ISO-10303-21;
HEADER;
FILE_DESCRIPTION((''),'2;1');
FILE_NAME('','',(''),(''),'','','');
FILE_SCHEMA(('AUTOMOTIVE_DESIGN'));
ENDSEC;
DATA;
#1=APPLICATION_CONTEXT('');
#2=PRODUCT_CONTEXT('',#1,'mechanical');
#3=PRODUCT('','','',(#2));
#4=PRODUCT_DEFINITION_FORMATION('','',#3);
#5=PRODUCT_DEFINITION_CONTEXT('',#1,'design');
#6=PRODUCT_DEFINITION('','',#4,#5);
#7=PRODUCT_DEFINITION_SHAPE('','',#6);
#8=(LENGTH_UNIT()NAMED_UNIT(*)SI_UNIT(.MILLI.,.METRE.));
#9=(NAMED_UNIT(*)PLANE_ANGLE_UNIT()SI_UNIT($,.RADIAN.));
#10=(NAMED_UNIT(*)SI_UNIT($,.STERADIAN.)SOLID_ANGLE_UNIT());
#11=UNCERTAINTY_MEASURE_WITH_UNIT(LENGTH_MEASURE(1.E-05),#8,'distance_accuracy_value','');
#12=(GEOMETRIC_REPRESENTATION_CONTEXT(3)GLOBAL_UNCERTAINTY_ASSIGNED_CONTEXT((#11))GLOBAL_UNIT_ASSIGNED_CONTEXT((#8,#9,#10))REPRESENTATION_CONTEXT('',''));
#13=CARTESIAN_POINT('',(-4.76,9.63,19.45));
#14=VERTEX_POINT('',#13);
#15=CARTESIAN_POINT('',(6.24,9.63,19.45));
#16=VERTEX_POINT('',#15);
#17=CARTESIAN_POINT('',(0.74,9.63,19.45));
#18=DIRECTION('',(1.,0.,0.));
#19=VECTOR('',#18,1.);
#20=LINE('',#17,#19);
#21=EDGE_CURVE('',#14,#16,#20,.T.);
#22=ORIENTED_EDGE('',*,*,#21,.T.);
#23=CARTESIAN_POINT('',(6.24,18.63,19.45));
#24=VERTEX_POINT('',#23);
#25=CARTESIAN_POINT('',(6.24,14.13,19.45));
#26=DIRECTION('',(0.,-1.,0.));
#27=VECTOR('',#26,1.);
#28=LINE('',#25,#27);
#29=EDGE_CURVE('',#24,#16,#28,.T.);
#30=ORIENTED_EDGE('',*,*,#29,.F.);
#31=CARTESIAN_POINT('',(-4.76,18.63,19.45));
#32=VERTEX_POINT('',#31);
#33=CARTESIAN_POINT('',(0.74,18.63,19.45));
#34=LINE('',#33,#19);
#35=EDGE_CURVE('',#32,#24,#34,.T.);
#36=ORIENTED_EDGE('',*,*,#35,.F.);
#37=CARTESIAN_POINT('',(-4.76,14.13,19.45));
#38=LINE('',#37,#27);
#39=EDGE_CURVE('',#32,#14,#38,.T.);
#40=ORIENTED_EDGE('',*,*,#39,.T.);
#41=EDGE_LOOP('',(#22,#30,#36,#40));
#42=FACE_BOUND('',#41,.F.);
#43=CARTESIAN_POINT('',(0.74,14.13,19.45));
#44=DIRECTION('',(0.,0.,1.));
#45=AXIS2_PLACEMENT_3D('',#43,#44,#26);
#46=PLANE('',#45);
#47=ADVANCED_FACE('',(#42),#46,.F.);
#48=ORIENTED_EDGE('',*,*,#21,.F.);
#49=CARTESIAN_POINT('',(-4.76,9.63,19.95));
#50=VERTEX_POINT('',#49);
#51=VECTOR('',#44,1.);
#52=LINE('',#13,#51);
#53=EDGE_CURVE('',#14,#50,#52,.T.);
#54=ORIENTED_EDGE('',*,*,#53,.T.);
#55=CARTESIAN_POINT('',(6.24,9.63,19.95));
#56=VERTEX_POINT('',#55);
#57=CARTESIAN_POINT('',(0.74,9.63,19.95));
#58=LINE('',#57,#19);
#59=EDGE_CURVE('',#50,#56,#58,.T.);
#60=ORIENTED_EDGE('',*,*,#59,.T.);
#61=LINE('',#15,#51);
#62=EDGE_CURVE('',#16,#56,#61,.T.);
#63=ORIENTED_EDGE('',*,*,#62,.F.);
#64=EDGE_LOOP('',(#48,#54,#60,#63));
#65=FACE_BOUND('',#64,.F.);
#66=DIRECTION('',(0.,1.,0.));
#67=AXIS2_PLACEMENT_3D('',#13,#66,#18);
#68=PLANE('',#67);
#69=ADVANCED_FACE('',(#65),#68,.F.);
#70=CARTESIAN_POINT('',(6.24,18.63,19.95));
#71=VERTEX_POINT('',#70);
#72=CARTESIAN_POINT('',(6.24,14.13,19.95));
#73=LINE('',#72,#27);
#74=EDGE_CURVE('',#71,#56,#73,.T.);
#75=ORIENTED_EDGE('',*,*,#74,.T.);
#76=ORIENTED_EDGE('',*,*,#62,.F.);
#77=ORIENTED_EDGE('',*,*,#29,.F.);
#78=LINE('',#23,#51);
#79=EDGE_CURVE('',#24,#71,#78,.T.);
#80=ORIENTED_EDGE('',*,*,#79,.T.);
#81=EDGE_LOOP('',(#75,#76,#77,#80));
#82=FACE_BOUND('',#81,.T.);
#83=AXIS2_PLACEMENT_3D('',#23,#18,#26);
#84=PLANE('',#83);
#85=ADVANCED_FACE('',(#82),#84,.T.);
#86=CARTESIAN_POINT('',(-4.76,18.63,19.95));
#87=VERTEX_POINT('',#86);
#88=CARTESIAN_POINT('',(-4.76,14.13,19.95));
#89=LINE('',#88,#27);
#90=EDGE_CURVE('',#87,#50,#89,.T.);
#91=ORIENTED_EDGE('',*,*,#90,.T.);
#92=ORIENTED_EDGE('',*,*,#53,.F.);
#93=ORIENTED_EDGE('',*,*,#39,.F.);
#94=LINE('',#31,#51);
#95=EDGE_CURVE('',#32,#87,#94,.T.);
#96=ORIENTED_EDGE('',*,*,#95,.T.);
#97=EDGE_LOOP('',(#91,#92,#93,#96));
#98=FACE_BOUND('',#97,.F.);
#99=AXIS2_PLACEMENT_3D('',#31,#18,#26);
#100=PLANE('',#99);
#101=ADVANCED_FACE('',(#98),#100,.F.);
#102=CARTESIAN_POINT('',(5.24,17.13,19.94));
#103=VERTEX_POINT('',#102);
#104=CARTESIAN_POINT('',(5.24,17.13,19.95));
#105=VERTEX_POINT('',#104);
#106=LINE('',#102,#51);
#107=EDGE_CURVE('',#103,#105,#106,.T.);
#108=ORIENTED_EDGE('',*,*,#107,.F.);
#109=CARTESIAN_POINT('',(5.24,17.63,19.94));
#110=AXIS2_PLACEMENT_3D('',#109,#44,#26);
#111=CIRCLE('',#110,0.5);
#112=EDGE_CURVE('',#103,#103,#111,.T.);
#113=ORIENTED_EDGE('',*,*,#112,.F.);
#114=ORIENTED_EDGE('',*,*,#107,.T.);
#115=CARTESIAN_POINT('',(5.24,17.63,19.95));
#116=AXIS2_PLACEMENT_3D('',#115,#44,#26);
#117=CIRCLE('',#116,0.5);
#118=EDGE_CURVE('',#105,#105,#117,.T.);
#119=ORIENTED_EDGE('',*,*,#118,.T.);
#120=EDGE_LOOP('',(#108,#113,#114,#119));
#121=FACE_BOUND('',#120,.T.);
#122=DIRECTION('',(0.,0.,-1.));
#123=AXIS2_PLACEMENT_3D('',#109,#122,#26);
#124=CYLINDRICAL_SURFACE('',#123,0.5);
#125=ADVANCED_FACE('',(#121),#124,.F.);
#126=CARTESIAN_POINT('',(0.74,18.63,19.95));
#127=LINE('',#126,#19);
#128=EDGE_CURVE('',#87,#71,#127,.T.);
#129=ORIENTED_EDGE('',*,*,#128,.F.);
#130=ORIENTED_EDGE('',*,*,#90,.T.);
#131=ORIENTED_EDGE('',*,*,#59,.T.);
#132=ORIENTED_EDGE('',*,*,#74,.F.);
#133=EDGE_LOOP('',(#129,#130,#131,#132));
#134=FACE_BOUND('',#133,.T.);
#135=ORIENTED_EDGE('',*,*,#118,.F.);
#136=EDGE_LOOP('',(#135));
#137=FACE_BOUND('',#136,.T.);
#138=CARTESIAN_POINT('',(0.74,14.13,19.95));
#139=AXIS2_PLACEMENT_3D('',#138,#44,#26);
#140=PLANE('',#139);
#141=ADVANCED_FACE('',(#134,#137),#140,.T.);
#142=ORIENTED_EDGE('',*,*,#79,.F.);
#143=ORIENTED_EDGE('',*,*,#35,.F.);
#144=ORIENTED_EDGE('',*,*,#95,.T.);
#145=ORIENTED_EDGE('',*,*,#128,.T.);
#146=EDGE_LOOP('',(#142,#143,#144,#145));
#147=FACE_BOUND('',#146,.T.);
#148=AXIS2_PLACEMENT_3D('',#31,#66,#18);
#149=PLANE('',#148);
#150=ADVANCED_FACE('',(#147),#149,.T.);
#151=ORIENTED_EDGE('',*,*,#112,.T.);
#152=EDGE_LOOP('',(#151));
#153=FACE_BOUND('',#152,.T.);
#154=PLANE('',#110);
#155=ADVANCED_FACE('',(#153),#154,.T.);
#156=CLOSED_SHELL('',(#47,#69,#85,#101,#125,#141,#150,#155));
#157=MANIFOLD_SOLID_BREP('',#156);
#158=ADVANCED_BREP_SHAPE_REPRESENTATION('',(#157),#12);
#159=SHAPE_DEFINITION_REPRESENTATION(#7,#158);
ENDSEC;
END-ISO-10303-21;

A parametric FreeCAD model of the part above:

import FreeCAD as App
import Part
import Sketcher

V = App.Vector
Q = App.Units.Quantity


def add_polygon(sketch, points):
    """Adds a closed chain of lines whose ends are joined by coincident constraints."""
    first, n = sketch.GeometryCount, len(points)
    for a, b in zip(points, points[1:] + points[:1]):
        sketch.addGeometry(Part.LineSegment(App.Vector(*a, 0), App.Vector(*b, 0)), False)
    for i in range(n):
        sketch.addConstraint(Sketcher.Constraint("Coincident", first + i, 2, first + (i + 1) % n, 1))

doc = App.newDocument("Part")
body = doc.addObject("PartDesign::Body", "Body")

# Sketch on XY plane
sketch1 = doc.addObject("Sketcher::SketchObject", "Sketch")
body.addObject(sketch1)
sketch1.AttachmentSupport = (doc.XY_Plane, [""])
sketch1.MapMode = "FlatFace"
sketch1.AttachmentOffset = App.Placement(V(0, 0, 0.49), App.Rotation())
sketch1.addGeometry(Part.Circle(V(1, 10, 0), V(0, 0, 1), 0.5), False)
sketch1.addConstraint([
    Sketcher.Constraint("Diameter", 0, Q("1 mm")),
    Sketcher.Constraint("DistanceX", -1, 1, 0, 3, Q("1 mm")),
    Sketcher.Constraint("DistanceY", -1, 1, 0, 3, Q("10 mm")),
])
pad1 = doc.addObject("PartDesign::Pad", "Pad")
body.addObject(pad1)
pad1.Profile = sketch1
pad1.Length = 0.01
body2 = doc.addObject("PartDesign::Body", "Body001")

# Sketch on XY plane
sketch2 = doc.addObject("Sketcher::SketchObject", "Sketch001")
body2.addObject(sketch2)
sketch2.AttachmentSupport = (doc.getObject("XY_Plane001"), [""])
sketch2.MapMode = "FlatFace"
add_polygon(sketch2, [(0, 11), (0, 0), (9, 0), (9, 11)])  # lines 0-3
sketch2.addConstraint([
    Sketcher.Constraint("Vertical", 0),
    Sketcher.Constraint("Horizontal", 1),
    Sketcher.Constraint("Vertical", 2),
    Sketcher.Constraint("Horizontal", 3),
    Sketcher.Constraint("Coincident", 0, 2, -1, 1),
    Sketcher.Constraint("DistanceX", 1, 1, 1, 2, Q("9 mm")),
    Sketcher.Constraint("DistanceY", 0, 2, 0, 1, Q("11 mm")),
])
pad2 = doc.addObject("PartDesign::Pad", "Pad001")
body2.addObject(pad2)
pad2.Profile = sketch2
pad2.Length = 0.5
doc.recompute()

boolean = doc.addObject("PartDesign::Boolean", "Boolean")
body2.addObject(boolean)
boolean.Type = "Cut"
boolean.addObjects([body])
body3 = doc.addObject("PartDesign::Body", "Body002")
doc.recompute()

body2.Placement = App.Placement(V(-4.76, 18.63, 19.45), App.Rotation(V(0, 0, 1), 270))
boolean2 = doc.addObject("PartDesign::Boolean", "Boolean001")
body3.addObject(boolean2)
boolean2.Type = "Fuse"
boolean2.addObjects([body2])

doc.recompute()
